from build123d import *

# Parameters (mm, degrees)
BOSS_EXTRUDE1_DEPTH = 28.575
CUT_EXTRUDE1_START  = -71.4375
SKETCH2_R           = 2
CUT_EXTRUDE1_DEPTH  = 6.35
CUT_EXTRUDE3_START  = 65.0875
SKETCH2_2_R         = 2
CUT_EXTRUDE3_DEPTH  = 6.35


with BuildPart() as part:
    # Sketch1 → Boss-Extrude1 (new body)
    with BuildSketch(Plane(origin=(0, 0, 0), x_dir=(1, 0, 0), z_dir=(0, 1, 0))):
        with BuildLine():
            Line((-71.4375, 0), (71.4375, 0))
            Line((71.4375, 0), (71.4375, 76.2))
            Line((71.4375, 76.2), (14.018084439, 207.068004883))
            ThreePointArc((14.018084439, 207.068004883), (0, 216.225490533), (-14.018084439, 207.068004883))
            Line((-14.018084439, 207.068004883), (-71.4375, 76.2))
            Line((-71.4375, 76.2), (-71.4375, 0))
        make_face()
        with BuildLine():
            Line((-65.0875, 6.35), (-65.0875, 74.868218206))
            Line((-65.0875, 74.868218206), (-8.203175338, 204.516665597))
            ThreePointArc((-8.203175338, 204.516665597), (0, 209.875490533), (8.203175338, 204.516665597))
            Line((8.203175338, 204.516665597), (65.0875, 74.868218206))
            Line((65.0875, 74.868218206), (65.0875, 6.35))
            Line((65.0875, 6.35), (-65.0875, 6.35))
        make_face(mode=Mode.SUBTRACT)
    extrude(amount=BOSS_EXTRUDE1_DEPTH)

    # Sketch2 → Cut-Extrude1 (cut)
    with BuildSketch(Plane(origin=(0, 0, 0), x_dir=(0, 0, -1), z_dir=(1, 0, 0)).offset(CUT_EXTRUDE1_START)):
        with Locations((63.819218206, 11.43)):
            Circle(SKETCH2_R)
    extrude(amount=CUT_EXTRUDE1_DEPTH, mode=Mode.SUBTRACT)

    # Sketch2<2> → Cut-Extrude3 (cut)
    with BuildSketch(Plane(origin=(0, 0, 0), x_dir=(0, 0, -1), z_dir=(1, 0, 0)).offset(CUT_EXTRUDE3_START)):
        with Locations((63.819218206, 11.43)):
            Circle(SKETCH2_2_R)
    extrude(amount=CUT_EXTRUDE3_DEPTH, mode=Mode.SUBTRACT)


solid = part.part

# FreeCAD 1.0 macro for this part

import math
import FreeCAD as App
import Part
import Sketcher
Q = App.Units.Quantity

doc = App.newDocument("Part")
body = doc.addObject("PartDesign::Body", "Body")

# Sketch on XZ plane
sketch1 = body.newObject("Sketcher::SketchObject", "Sketch")
sketch1.AttachmentSupport = (doc.getObject("XZ_Plane"), [""])
sketch1.MapMode = "FlatFace"
sketch1.addGeometry(Part.LineSegment(App.Vector(-71.4375, 0, 0), App.Vector(71.4375, 0, 0)), False)
sketch1.addGeometry(Part.LineSegment(App.Vector(71.4375, 0, 0), App.Vector(71.4375, -76.2, 0)), False)
sketch1.addGeometry(Part.LineSegment(App.Vector(71.4375, -76.2, 0), App.Vector(14.018084, -207.068005, 0)), False)
sketch1.addGeometry(Part.ArcOfCircle(Part.Circle(App.Vector(0, -200.917455, 0), App.Vector(0, 0, 1), 15.308036), math.radians(-156.31014), math.radians(-23.68986)), False)
sketch1.addGeometry(Part.LineSegment(App.Vector(-14.018084, -207.068005, 0), App.Vector(-71.4375, -76.2, 0)), False)
sketch1.addGeometry(Part.LineSegment(App.Vector(-71.4375, -76.2, 0), App.Vector(-71.4375, 0, 0)), False)
sketch1.addGeometry(Part.LineSegment(App.Vector(65.0875, -6.35, 0), App.Vector(-65.0875, -6.35, 0)), False)
sketch1.addGeometry(Part.LineSegment(App.Vector(-65.0875, -6.35, 0), App.Vector(-65.0875, -74.868218, 0)), False)
sketch1.addGeometry(Part.LineSegment(App.Vector(-65.0875, -74.868218, 0), App.Vector(-8.203175, -204.516666, 0)), False)
sketch1.addGeometry(Part.ArcOfCircle(Part.Circle(App.Vector(0, -200.917455, 0), App.Vector(0, 0, 1), 8.958036), math.radians(-156.31014), math.radians(-23.68986)), False)
sketch1.addGeometry(Part.LineSegment(App.Vector(8.203175, -204.516666, 0), App.Vector(65.0875, -74.868218, 0)), False)
sketch1.addGeometry(Part.LineSegment(App.Vector(65.0875, -74.868218, 0), App.Vector(65.0875, -6.35, 0)), False)
sketch1.addConstraint(Sketcher.Constraint("Coincident", 0, 2, 1, 1))
sketch1.addConstraint(Sketcher.Constraint("Coincident", 1, 2, 2, 1))
sketch1.addConstraint(Sketcher.Constraint("Tangent", 2, 2, 3, 2))
sketch1.addConstraint(Sketcher.Constraint("Tangent", 3, 1, 4, 1))
sketch1.addConstraint(Sketcher.Constraint("Coincident", 4, 2, 5, 1))
sketch1.addConstraint(Sketcher.Constraint("Coincident", 5, 2, 0, 1))
sketch1.addConstraint(Sketcher.Constraint("Coincident", 6, 2, 7, 1))
sketch1.addConstraint(Sketcher.Constraint("Coincident", 7, 2, 8, 1))
sketch1.addConstraint(Sketcher.Constraint("Tangent", 8, 2, 9, 1))
sketch1.addConstraint(Sketcher.Constraint("Tangent", 9, 2, 10, 1))
sketch1.addConstraint(Sketcher.Constraint("Coincident", 10, 2, 11, 1))
sketch1.addConstraint(Sketcher.Constraint("Coincident", 11, 2, 6, 1))
sketch1.addConstraint(Sketcher.Constraint("Horizontal", 0))
sketch1.addConstraint(Sketcher.Constraint("Vertical", 1))
sketch1.addConstraint(Sketcher.Constraint("Vertical", 5))
sketch1.addConstraint(Sketcher.Constraint("Horizontal", 6))
sketch1.addConstraint(Sketcher.Constraint("Vertical", 7))
sketch1.addConstraint(Sketcher.Constraint("Vertical", 11))
sketch1.addConstraint(Sketcher.Constraint("Coincident", 9, 3, 3, 3))
sketch1.addConstraint(Sketcher.Constraint("Symmetric", 0, 2, 5, 2, -1, 1))
sketch1.addConstraint(Sketcher.Constraint("Symmetric", 2, 2, 3, 1, -2))
sketch1.addConstraint(Sketcher.Constraint("Symmetric", 7, 2, 10, 2, -2))
sketch1.addConstraint(Sketcher.Constraint("Parallel", 4, 8))
sketch1.addConstraint(Sketcher.Constraint("DistanceY", 1, 2, 1, 1, Q("3 in")))
sketch1.addConstraint(Sketcher.Constraint("DistanceX", 0, 1, 0, 2, Q("5.625 in")))
sketch1.addConstraint(Sketcher.Constraint("DistanceX", 6, 2, 6, 1, Q("5.125 in")))
sketch1.addConstraint(Sketcher.Constraint("DistanceY", 6, 2, -1, 1, Q("0.25 in")))
sketch1.addConstraint(Sketcher.Constraint("Radius", 3, 15.308036))
sketch1.addConstraint(Sketcher.Constraint("Radius", 9, 8.958036))
sketch1.addConstraint(Sketcher.Constraint("DistanceY", 7, 2, 7, 1, 68.518218))
pad1 = body.newObject("PartDesign::Pad", "Pad")
pad1.Profile = sketch1
pad1.Length = Q("1.125 in")
pad1.Reversed = True

# Sketch on YZ plane
sketch2 = body.newObject("Sketcher::SketchObject", "Sketch001")
sketch2.AttachmentSupport = (doc.getObject("YZ_Plane"), [""])
sketch2.MapMode = "FlatFace"
sketch2.AttachmentOffset = App.Placement(App.Vector(0, 0, -2.8125 * 25.4), App.Rotation())
sketch2.addGeometry(Part.Circle(App.Vector(11.4, -63.8, 0), App.Vector(0, 0, 1), 2), False)
sketch2.addConstraint(Sketcher.Constraint("Diameter", 0, 4.0))
sketch2.addConstraint(Sketcher.Constraint("DistanceX", -1, 1, 0, 3, Q("0.45 in")))
sketch2.addConstraint(Sketcher.Constraint("DistanceY", 0, 3, -1, 1, 63.819218))
pocket1 = body.newObject("PartDesign::Pocket", "Pocket")
pocket1.Profile = sketch2
pocket1.Length = Q("0.25 in")
pocket1.Reversed = True

# Sketch on YZ plane
sketch3 = body.newObject("Sketcher::SketchObject", "Sketch002")
sketch3.AttachmentSupport = (doc.getObject("YZ_Plane"), [""])
sketch3.MapMode = "FlatFace"
sketch3.AttachmentOffset = App.Placement(App.Vector(0, 0, 2.5625 * 25.4), App.Rotation())
sketch3.addGeometry(Part.Circle(App.Vector(11.4, -63.8, 0), App.Vector(0, 0, 1), 2), False)
sketch3.addConstraint(Sketcher.Constraint("Diameter", 0, 4.0))
sketch3.addConstraint(Sketcher.Constraint("DistanceX", -1, 1, 0, 3, Q("0.45 in")))
sketch3.addConstraint(Sketcher.Constraint("DistanceY", 0, 3, -1, 1, 63.819218))
pocket2 = body.newObject("PartDesign::Pocket", "Pocket001")
pocket2.Profile = sketch3
pocket2.Length = Q("0.25 in")
pocket2.Reversed = True

doc.recompute()
